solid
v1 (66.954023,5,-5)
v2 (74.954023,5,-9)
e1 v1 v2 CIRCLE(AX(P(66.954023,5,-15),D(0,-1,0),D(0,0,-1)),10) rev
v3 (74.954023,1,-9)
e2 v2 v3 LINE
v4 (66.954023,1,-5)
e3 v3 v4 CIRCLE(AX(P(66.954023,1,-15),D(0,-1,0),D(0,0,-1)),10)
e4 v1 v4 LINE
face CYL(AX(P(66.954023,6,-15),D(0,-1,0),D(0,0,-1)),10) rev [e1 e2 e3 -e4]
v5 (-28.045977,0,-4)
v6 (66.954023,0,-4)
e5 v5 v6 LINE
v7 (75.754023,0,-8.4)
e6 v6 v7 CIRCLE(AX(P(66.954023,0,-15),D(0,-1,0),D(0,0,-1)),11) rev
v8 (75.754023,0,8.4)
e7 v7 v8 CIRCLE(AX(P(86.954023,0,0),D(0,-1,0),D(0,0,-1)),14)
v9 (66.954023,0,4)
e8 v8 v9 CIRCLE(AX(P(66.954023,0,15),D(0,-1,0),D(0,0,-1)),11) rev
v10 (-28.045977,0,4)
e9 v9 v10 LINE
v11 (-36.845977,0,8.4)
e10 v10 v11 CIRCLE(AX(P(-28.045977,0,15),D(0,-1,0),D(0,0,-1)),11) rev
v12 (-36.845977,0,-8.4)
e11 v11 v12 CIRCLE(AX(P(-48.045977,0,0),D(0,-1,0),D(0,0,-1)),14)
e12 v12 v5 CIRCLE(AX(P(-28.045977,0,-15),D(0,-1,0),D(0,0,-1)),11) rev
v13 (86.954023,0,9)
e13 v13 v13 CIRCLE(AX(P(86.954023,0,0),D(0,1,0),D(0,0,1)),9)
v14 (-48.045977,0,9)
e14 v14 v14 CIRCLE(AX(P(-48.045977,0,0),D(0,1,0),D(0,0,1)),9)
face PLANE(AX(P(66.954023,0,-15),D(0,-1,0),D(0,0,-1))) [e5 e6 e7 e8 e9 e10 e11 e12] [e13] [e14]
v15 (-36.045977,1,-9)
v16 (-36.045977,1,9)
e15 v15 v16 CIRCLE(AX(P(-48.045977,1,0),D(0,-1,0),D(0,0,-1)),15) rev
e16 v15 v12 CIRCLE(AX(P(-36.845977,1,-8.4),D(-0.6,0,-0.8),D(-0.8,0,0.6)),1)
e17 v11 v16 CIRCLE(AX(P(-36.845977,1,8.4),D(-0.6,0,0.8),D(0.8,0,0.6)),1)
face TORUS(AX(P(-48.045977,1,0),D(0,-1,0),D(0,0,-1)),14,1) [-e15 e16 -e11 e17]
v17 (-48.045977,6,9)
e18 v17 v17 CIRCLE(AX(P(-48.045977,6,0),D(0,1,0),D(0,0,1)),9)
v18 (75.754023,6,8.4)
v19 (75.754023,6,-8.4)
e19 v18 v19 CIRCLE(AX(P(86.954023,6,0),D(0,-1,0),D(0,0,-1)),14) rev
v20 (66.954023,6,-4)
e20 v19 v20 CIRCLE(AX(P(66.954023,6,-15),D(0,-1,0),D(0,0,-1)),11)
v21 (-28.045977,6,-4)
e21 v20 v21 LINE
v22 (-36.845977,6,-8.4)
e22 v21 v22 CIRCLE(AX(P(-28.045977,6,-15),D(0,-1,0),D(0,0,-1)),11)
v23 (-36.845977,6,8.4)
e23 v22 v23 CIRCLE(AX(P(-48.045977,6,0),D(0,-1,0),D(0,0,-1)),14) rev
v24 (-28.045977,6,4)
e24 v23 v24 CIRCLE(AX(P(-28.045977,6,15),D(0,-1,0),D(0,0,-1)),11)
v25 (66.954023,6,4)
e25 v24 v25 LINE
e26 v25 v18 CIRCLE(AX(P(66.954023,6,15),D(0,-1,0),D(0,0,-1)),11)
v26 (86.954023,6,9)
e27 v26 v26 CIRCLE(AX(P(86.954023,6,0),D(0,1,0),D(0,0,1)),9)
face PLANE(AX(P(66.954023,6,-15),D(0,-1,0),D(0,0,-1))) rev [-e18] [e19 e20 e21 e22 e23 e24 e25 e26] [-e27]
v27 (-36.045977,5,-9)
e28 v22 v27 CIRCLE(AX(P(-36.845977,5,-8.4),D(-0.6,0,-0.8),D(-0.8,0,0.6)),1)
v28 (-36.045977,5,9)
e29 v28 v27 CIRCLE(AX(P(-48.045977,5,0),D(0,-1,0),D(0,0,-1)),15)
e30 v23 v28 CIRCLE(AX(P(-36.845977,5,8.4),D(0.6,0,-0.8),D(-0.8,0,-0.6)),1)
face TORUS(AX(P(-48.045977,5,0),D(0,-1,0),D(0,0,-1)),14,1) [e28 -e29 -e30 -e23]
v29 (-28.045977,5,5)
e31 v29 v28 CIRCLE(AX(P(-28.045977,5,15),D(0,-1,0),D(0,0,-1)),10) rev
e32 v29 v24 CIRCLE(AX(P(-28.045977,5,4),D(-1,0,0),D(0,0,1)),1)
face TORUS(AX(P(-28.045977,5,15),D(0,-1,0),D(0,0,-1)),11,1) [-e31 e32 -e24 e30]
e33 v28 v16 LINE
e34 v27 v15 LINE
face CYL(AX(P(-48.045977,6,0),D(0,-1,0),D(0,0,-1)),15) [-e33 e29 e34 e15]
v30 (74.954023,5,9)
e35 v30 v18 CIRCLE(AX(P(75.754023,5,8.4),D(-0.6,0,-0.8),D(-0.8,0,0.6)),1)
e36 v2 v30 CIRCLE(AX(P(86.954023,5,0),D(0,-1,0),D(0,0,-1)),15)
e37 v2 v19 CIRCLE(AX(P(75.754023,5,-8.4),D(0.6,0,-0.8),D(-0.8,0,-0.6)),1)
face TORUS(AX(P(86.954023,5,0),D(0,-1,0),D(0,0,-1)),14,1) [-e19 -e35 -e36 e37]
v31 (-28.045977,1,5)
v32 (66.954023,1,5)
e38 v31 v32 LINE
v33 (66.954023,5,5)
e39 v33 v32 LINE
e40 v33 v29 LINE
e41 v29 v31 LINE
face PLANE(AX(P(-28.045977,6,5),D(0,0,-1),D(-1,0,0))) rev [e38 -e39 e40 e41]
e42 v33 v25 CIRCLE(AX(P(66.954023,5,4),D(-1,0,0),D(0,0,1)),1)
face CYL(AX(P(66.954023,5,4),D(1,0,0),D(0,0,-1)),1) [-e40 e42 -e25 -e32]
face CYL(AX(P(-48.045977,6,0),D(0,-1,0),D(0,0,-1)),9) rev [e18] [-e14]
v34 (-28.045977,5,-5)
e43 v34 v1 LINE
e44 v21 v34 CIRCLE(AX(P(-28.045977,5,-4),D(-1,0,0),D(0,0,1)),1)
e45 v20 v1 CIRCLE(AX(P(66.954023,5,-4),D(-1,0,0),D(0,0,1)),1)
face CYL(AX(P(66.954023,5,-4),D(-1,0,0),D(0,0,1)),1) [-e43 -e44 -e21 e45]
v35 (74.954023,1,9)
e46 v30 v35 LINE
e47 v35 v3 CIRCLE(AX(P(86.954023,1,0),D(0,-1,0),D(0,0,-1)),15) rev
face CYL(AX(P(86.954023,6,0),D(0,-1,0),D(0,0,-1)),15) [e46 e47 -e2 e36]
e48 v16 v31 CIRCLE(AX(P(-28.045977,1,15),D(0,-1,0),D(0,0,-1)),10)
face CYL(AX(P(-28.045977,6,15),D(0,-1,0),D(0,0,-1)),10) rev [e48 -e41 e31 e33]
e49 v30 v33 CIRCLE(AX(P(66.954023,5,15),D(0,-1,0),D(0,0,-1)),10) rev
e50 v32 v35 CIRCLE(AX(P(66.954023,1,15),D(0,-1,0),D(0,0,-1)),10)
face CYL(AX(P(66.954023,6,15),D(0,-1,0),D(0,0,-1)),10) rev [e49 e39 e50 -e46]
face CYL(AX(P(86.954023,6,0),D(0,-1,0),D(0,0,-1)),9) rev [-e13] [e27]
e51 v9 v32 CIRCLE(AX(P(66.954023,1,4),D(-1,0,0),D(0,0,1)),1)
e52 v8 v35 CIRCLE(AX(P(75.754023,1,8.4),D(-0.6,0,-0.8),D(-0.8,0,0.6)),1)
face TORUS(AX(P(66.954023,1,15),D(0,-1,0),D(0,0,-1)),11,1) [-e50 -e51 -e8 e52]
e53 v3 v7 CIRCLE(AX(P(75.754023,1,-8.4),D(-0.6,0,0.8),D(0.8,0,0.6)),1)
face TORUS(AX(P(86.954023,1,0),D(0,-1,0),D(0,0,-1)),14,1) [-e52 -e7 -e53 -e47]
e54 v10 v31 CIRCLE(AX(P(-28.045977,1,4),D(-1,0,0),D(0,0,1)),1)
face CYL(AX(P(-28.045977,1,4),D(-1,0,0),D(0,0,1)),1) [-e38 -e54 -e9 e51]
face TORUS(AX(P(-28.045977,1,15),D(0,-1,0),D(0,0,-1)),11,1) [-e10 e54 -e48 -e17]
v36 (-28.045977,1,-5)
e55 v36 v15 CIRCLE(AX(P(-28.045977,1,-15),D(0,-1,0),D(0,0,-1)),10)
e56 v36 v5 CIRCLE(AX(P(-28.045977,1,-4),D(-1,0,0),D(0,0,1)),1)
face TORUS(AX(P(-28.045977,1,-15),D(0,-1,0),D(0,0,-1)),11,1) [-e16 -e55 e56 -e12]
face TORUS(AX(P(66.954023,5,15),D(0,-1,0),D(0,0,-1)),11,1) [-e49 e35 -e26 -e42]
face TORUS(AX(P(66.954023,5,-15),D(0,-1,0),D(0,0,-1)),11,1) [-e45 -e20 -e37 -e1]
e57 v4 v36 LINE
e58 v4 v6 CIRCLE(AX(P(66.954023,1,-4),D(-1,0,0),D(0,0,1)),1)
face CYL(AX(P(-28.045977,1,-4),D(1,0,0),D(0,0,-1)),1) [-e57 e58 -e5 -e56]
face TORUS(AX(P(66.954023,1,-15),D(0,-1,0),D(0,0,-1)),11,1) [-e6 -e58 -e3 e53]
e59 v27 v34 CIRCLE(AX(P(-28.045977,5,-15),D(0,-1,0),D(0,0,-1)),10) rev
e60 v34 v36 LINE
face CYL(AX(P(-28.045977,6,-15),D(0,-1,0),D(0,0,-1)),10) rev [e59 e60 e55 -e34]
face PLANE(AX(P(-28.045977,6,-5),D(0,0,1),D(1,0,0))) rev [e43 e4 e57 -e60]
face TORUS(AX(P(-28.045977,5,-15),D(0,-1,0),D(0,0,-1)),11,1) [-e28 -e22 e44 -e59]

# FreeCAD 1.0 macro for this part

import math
import FreeCAD as App
import Part
import Sketcher


def edges_at(feature, points):
    """Names of the edges that pass closest to the given points."""
    edges = feature.Shape.Edges
    near = lambda p: min(range(len(edges)), key=lambda i: edges[i].distToShape(Part.Vertex(*p))[0])
    return sorted({f"Edge{near(p) + 1}" for p in points})

doc = App.newDocument("Part")
body = doc.addObject("PartDesign::Body", "Body")

sketch1 = doc.addObject("Sketcher::SketchObject", "Sketch")
body.addObject(sketch1)
sketch1.AttachmentSupport = (doc.XZ_Plane, [""])
sketch1.MapMode = "FlatFace"
sketch1.addGeometry([
    Part.LineSegment(App.Vector(67, -5, 0), App.Vector(-28, -5, 0)),
    Part.ArcOfCircle(Part.Circle(App.Vector(-28, -15, 0), App.Vector(0, 0, 1), 10), math.radians(90), math.radians(143)),
    Part.ArcOfCircle(Part.Circle(App.Vector(-48, 0, 0), App.Vector(0, 0, 1), 15), math.radians(37), math.radians(323)),
    Part.ArcOfCircle(Part.Circle(App.Vector(-28, 15, 0), App.Vector(0, 0, 1), 10), math.radians(-143), math.radians(-90)),
    Part.LineSegment(App.Vector(-28, 5, 0), App.Vector(67, 5, 0)),
    Part.ArcOfCircle(Part.Circle(App.Vector(67, 15, 0), App.Vector(0, 0, 1), 10), math.radians(-90), math.radians(-37)),
    Part.ArcOfCircle(Part.Circle(App.Vector(87, 0, 0), App.Vector(0, 0, 1), 15), math.radians(-143), math.radians(143)),
    Part.ArcOfCircle(Part.Circle(App.Vector(67, -15, 0), App.Vector(0, 0, 1), 10), math.radians(37), math.radians(90)),
    Part.Circle(App.Vector(87, 0, 0), App.Vector(0, 0, 1), 9),
    Part.Circle(App.Vector(-48, 0, 0), App.Vector(0, 0, 1), 9),
], False)
sketch1.addConstraint([
    Sketcher.Constraint("Tangent", 0, 2, 1, 1),
    Sketcher.Constraint("Tangent", 1, 2, 2, 2),
    Sketcher.Constraint("Tangent", 2, 1, 3, 1),
    Sketcher.Constraint("Tangent", 3, 2, 4, 1),
    Sketcher.Constraint("Tangent", 4, 2, 5, 1),
    Sketcher.Constraint("Tangent", 5, 2, 6, 2),
    Sketcher.Constraint("Tangent", 6, 1, 7, 1),
    Sketcher.Constraint("Tangent", 7, 2, 0, 1),
    Sketcher.Constraint("Horizontal", 0),
    Sketcher.Constraint("Horizontal", 4),
    Sketcher.Constraint("Coincident", 8, 3, 6, 3),
    Sketcher.Constraint("Coincident", 9, 3, 2, 3),
    Sketcher.Constraint("Equal", 1, 3),
    Sketcher.Constraint("Equal", 3, 5),
    Sketcher.Constraint("Equal", 2, 6),
    Sketcher.Constraint("Equal", 5, 7),
    Sketcher.Constraint("Equal", 8, 9),
    Sketcher.Constraint("Symmetric", 1, 3, 3, 3, -1),
    Sketcher.Constraint("PointOnObject", 6, 3, -1),
    Sketcher.Constraint("Diameter", 8, 18.0),
    Sketcher.Constraint("Radius", 1, 10.0),
    Sketcher.Constraint("Radius", 2, 15.0),
    Sketcher.Constraint("DistanceX", 0, 2, 0, 1, 95.0),
    Sketcher.Constraint("DistanceY", 1, 3, -1, 1, 15.0),
    Sketcher.Constraint("DistanceX", 1, 3, -1, 1, 28.045977),
])
pad1 = doc.addObject("PartDesign::Pad", "Pad")
body.addObject(pad1)
pad1.Profile = sketch1
pad1.Length = 6
pad1.Reversed = True
doc.recompute()

fillet = doc.addObject("PartDesign::Fillet", "Fillet")
body.addObject(fillet)
fillet.Base = (pad1, edges_at(pad1, [
    (-63.046, 0, 0),
    (-32.518, 0, -6.056),
    (19.454, 0, -5),
    (71.426, 0, -6.056),
    (-32.518, 6, -6.056),
    (-63.046, 6, 0),
    (-32.518, 6, 6.056),
    (19.454, 6, 5),
    (71.426, 6, 6.056),
    (101.954, 6, 0),
    (71.426, 6, -6.056),
    (101.954, 0, 0),
    (19.454, 6, -5),
    (71.426, 0, 6.056),
    (19.454, 0, 5),
    (-32.518, 0, 6.056),
]))
fillet.Radius = 1

doc.recompute()
